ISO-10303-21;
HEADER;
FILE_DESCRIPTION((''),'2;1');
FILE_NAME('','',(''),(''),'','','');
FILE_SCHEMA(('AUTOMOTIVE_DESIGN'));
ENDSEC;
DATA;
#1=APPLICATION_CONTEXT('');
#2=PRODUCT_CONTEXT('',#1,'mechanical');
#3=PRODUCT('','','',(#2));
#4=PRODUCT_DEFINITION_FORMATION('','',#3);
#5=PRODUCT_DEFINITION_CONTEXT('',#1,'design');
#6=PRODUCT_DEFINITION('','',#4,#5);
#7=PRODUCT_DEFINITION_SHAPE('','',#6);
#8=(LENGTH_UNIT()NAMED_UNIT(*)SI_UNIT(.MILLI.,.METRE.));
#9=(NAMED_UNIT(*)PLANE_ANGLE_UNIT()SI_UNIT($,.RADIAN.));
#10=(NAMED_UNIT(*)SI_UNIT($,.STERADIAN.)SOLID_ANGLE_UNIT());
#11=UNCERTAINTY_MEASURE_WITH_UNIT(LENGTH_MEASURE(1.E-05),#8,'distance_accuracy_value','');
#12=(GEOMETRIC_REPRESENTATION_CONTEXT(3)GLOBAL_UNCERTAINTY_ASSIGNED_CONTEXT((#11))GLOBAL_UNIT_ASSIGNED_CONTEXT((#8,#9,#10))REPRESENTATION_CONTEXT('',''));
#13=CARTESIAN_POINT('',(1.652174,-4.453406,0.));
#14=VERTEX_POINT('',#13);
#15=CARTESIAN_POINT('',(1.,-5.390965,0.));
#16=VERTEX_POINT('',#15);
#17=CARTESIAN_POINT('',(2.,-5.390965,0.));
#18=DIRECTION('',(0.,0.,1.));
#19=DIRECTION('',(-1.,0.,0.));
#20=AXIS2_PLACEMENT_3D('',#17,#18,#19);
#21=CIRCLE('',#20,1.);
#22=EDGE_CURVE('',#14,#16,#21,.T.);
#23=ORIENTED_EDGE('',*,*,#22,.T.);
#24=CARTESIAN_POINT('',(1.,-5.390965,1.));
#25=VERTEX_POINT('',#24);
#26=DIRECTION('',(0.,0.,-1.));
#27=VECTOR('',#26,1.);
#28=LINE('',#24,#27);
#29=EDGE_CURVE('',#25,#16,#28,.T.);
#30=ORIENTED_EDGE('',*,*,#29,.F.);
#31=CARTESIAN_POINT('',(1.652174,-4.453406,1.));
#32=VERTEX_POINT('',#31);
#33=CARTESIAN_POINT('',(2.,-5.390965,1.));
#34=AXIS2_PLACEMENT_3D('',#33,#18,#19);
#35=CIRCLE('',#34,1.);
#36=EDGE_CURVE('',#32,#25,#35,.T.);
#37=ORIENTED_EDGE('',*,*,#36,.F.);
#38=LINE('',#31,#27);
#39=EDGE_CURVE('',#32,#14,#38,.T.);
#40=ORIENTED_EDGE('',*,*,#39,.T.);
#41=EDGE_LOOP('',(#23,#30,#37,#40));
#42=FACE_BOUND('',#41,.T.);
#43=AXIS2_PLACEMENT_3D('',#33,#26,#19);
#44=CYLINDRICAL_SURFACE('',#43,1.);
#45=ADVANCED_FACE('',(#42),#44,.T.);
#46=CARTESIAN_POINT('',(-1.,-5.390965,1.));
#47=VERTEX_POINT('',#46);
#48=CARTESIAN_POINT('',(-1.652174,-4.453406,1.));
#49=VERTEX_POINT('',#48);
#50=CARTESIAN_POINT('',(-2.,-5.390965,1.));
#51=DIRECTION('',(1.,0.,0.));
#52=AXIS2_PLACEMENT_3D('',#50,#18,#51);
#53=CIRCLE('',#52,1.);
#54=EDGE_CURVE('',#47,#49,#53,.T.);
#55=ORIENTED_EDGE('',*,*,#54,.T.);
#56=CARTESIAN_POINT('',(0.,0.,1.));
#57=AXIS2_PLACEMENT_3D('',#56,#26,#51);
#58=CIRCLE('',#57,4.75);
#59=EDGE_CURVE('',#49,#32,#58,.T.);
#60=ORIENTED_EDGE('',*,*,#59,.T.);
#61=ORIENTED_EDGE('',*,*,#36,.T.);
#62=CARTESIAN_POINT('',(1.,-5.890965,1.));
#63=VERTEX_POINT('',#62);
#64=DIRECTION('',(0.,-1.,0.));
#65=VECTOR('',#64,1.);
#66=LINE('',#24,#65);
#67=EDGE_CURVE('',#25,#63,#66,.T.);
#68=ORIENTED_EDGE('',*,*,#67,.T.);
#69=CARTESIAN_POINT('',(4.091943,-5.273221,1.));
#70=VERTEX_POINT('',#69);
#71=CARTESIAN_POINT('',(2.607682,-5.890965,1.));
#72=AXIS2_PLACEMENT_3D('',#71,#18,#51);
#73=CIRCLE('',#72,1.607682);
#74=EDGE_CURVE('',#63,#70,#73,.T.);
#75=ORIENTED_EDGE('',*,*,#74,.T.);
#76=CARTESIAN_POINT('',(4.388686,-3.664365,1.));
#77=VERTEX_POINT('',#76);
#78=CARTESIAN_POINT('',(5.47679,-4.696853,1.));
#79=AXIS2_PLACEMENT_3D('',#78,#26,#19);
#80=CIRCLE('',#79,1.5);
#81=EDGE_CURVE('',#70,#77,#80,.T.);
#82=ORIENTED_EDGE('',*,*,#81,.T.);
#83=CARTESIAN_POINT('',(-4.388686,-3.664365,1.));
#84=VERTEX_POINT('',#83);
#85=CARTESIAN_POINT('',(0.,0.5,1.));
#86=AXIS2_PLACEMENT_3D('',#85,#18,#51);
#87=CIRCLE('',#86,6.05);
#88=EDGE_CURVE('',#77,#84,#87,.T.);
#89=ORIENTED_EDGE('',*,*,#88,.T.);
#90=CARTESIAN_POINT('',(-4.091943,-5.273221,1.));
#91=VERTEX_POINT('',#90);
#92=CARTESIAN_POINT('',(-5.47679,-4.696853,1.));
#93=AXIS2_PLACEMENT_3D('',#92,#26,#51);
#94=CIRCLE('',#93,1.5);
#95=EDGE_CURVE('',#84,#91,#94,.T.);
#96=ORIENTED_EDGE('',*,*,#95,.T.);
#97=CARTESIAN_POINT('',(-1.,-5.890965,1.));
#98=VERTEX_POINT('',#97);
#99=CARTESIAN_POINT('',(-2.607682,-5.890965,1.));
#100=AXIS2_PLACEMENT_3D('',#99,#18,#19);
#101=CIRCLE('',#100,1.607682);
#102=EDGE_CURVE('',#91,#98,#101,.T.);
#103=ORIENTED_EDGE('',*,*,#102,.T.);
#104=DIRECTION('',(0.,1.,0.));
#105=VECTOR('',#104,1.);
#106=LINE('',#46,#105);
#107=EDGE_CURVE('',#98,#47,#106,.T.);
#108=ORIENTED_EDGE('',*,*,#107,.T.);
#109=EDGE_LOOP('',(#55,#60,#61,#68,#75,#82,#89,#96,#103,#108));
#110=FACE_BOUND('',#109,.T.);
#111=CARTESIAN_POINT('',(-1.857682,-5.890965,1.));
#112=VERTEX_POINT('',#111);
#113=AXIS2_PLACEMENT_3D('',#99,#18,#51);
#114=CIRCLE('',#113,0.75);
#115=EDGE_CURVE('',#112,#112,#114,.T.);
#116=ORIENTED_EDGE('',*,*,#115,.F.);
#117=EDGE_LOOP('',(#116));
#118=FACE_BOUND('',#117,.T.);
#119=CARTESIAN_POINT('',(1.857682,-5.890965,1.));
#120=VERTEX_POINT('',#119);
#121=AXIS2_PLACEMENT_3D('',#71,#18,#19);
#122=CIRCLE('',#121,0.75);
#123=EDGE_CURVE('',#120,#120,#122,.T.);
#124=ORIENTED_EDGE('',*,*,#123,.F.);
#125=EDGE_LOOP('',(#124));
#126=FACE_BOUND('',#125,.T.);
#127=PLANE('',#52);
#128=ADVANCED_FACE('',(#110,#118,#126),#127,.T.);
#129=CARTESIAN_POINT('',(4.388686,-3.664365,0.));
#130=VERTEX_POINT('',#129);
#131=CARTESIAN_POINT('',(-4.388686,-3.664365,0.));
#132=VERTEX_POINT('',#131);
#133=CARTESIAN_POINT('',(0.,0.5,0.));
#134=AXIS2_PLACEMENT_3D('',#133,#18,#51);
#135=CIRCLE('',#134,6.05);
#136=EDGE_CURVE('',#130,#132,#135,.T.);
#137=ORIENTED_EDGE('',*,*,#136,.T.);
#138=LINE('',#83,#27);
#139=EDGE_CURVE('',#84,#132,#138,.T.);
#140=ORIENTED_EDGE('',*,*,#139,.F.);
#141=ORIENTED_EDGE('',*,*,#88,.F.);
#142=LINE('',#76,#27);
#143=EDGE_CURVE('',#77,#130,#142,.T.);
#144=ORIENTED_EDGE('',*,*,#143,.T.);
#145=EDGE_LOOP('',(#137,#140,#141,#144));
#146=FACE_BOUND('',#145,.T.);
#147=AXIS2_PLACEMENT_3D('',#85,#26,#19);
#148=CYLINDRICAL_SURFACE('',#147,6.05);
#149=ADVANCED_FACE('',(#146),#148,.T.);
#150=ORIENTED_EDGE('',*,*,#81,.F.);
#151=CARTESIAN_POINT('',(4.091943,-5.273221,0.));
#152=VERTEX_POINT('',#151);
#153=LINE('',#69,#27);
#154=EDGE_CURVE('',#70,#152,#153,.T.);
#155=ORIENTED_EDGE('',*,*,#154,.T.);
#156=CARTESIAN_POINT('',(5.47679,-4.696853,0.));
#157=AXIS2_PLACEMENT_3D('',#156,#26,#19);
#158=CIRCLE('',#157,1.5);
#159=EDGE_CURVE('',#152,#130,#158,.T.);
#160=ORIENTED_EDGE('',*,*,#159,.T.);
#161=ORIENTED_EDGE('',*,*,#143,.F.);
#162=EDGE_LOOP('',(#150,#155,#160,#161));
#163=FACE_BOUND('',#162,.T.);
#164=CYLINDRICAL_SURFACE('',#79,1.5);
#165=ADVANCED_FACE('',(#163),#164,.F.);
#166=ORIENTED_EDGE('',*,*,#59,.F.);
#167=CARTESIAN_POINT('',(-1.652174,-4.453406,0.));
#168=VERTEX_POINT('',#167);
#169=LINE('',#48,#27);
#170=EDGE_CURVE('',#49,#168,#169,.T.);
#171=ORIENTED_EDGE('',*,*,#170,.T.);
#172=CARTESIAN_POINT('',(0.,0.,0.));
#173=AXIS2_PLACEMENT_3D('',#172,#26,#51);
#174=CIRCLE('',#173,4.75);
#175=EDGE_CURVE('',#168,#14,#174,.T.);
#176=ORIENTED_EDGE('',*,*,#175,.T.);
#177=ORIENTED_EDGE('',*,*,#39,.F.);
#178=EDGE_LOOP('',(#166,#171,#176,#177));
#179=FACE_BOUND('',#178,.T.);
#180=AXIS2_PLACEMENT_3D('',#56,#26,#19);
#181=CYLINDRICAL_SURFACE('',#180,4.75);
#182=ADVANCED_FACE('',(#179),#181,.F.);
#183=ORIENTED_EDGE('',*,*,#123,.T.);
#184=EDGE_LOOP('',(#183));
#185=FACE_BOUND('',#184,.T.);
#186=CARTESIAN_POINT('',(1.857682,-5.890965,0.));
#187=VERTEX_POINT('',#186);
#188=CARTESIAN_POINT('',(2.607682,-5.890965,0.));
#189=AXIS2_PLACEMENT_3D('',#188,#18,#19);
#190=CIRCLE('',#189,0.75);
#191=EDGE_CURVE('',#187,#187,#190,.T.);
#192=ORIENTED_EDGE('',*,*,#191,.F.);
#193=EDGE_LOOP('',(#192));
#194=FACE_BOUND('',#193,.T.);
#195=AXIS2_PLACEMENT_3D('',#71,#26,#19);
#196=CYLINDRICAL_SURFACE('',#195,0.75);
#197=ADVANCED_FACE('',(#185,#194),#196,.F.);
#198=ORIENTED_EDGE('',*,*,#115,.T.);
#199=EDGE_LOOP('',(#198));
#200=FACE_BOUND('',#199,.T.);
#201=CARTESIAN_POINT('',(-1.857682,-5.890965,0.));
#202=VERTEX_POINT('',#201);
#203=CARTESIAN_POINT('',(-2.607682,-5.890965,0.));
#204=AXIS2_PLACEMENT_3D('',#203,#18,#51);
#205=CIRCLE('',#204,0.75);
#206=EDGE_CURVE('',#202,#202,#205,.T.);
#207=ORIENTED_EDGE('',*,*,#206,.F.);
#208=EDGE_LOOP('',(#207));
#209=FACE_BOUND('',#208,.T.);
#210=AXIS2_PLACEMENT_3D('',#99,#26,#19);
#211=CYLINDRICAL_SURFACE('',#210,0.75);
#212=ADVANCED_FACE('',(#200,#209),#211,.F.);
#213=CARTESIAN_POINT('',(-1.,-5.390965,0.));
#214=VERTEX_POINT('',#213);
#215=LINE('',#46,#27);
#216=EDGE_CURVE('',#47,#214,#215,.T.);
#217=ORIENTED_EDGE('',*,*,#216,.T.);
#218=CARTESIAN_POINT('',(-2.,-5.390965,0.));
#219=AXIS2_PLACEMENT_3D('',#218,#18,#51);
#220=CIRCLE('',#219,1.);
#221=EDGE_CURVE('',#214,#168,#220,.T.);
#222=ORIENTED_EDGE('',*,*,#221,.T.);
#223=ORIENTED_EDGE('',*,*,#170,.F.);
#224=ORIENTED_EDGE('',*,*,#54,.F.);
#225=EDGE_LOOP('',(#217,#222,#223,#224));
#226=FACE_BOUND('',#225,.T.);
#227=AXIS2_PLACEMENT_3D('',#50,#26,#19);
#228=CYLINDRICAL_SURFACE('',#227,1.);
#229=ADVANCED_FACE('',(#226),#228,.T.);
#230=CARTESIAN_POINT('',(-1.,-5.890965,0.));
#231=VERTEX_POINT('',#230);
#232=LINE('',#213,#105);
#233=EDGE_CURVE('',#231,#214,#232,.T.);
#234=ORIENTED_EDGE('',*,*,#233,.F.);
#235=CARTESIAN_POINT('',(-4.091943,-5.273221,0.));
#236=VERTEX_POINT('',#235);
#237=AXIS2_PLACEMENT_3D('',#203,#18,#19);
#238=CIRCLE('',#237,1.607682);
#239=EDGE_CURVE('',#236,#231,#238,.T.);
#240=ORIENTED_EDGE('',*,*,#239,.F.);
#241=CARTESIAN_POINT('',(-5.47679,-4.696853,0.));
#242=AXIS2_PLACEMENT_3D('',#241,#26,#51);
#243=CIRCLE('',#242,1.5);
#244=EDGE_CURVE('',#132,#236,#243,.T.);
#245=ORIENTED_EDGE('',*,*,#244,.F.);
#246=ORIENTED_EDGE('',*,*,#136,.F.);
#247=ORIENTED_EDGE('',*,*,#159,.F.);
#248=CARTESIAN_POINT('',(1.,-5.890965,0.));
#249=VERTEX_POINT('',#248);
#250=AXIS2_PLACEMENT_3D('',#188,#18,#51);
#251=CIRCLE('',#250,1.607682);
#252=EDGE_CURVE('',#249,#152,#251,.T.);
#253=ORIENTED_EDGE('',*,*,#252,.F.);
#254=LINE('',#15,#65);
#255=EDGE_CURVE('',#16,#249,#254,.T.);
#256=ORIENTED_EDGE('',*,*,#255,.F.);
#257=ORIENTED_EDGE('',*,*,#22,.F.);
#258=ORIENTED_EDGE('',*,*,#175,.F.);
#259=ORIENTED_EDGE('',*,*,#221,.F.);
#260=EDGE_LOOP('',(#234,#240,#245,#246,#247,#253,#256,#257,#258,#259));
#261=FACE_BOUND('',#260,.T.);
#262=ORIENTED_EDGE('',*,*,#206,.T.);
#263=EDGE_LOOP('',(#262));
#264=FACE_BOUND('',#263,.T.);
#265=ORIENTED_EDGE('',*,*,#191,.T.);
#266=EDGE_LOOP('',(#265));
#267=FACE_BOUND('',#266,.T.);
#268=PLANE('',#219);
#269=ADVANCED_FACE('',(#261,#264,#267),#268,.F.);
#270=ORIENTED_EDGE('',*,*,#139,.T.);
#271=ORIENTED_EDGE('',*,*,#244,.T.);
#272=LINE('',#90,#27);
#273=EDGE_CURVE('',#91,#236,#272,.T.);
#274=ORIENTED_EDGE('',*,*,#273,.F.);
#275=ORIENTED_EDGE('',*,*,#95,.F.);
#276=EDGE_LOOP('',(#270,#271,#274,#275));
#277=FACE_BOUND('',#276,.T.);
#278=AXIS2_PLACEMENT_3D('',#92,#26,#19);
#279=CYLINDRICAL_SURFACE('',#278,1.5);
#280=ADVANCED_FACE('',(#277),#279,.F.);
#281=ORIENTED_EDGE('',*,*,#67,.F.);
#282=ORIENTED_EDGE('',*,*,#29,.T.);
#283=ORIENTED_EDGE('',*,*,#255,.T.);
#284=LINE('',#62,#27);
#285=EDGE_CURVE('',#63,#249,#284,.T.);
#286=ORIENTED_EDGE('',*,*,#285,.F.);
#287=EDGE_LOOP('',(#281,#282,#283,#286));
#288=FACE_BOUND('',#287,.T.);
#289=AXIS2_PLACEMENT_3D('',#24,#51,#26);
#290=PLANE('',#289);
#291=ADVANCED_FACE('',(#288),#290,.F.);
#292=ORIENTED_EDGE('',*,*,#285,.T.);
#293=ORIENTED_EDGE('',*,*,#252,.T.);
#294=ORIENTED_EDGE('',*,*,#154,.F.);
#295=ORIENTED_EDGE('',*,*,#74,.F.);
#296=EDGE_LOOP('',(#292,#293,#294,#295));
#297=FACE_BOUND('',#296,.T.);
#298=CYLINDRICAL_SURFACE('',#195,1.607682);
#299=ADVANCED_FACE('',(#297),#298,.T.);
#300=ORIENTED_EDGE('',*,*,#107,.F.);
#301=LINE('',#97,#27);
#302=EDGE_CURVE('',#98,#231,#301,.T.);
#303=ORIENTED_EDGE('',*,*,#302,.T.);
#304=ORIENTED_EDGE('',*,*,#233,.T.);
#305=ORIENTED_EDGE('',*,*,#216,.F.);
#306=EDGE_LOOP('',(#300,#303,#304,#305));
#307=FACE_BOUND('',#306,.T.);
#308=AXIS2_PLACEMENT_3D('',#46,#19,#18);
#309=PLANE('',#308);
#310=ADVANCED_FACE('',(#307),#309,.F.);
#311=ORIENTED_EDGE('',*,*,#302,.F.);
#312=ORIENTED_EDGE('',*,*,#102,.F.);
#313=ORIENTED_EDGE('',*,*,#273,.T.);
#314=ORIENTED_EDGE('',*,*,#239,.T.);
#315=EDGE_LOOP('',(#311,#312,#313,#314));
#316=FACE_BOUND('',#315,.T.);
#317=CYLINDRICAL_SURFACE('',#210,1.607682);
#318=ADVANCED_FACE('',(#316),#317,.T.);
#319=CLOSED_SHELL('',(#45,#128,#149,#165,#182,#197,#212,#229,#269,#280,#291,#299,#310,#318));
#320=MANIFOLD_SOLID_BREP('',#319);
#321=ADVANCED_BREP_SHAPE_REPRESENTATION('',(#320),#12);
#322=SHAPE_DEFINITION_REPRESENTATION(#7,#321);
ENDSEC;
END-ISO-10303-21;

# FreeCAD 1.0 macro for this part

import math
import FreeCAD as App
import Part
import Sketcher
Q = App.Units.Quantity

doc = App.newDocument("Part")
body = doc.addObject("PartDesign::Body", "Body")

# Sketch on XY plane
sketch1 = body.newObject("Sketcher::SketchObject", "Sketch")
sketch1.AttachmentSupport = (doc.getObject("XY_Plane"), [""])
sketch1.MapMode = "FlatFace"
sketch1.addGeometry([
    Part.LineSegment(App.Vector(-1, -5.9, 0), App.Vector(-1, -5.4, 0)),  # 0
    Part.ArcOfCircle(Part.Circle(App.Vector(-2, -5.4, 0), App.Vector(0, 0, 1), 1), math.radians(0), math.radians(70)),  # 1
    Part.ArcOfCircle(Part.Circle(App.Vector(0, 0, 0), App.Vector(0, 0, 1), 4.8), math.radians(-70), math.radians(250)),  # 2
    Part.ArcOfCircle(Part.Circle(App.Vector(2, -5.4, 0), App.Vector(0, 0, 1), 1), math.radians(110), math.radians(180)),  # 3
    Part.LineSegment(App.Vector(1, -5.4, 0), App.Vector(1, -5.9, 0)),  # 4
    Part.ArcOfCircle(Part.Circle(App.Vector(2.6, -5.9, 0), App.Vector(0, 0, 1), 1.6), math.radians(180), math.radians(383)),  # 5
    Part.ArcOfCircle(Part.Circle(App.Vector(5.5, -4.7, 0), App.Vector(0, 0, 1), 1.5), math.radians(137), math.radians(203)),  # 6
    Part.ArcOfCircle(Part.Circle(App.Vector(0, 0.5, 0), App.Vector(0, 0, 1), 6), math.radians(-43), math.radians(223)),  # 7
    Part.ArcOfCircle(Part.Circle(App.Vector(-5.5, -4.7, 0), App.Vector(0, 0, 1), 1.5), math.radians(-23), math.radians(43)),  # 8
    Part.ArcOfCircle(Part.Circle(App.Vector(-2.6, -5.9, 0), App.Vector(0, 0, 1), 1.6), math.radians(157), math.radians(360)),  # 9
    Part.Circle(App.Vector(2.6, -5.9, 0), App.Vector(0, 0, 1), 0.8),  # 10
    Part.Circle(App.Vector(-2.6, -5.9, 0), App.Vector(0, 0, 1), 0.8),  # 11
], False)
sketch1.addConstraint([
    Sketcher.Constraint("Tangent", 0, 2, 1, 1),
    Sketcher.Constraint("Tangent", 1, 2, 2, 2),
    Sketcher.Constraint("Tangent", 2, 1, 3, 1),
    Sketcher.Constraint("Tangent", 3, 2, 4, 1),
    Sketcher.Constraint("Tangent", 4, 2, 5, 1),
    Sketcher.Constraint("Tangent", 5, 2, 6, 2),
    Sketcher.Constraint("Tangent", 6, 1, 7, 1),
    Sketcher.Constraint("Tangent", 7, 2, 8, 2),
    Sketcher.Constraint("Tangent", 8, 1, 9, 1),
    Sketcher.Constraint("Tangent", 9, 2, 0, 1),
    Sketcher.Constraint("Vertical", 0),
    Sketcher.Constraint("Vertical", 4),
    Sketcher.Constraint("Coincident", 2, 3, -1, 1),
    Sketcher.Constraint("Coincident", 10, 3, 5, 3),
    Sketcher.Constraint("Coincident", 11, 3, 9, 3),
    Sketcher.Constraint("Equal", 1, 3),
    Sketcher.Constraint("Equal", 6, 8),
    Sketcher.Constraint("Equal", 5, 9),
    Sketcher.Constraint("Equal", 10, 11),
    Sketcher.Constraint("Symmetric", 6, 3, 8, 3, -2),
    Sketcher.Constraint("Horizontal", 1, 3, 3, 3),
    Sketcher.Constraint("Radius", 1, Q("1 mm")),
    Sketcher.Constraint("Diameter", 10, Q("1.5 mm")),
    Sketcher.Constraint("Radius", 6, Q("1.5 mm")),
    Sketcher.Constraint("Radius", 2, Q("4.75 mm")),
    Sketcher.Constraint("Radius", 7, Q("6.05 mm")),
    Sketcher.Constraint("DistanceY", 0, 1, 0, 2, Q("0.5 mm")),
    Sketcher.Constraint("DistanceX", 1, 3, -1, 1, Q("2 mm")),
    Sketcher.Constraint("DistanceY", -1, 1, 7, 3, Q("0.5 mm")),
    Sketcher.Constraint("Radius", 5, Q("1.607682 mm")),
])
pad1 = body.newObject("PartDesign::Pad", "Pad")
pad1.Profile = sketch1
pad1.Length = 1

doc.recompute()
